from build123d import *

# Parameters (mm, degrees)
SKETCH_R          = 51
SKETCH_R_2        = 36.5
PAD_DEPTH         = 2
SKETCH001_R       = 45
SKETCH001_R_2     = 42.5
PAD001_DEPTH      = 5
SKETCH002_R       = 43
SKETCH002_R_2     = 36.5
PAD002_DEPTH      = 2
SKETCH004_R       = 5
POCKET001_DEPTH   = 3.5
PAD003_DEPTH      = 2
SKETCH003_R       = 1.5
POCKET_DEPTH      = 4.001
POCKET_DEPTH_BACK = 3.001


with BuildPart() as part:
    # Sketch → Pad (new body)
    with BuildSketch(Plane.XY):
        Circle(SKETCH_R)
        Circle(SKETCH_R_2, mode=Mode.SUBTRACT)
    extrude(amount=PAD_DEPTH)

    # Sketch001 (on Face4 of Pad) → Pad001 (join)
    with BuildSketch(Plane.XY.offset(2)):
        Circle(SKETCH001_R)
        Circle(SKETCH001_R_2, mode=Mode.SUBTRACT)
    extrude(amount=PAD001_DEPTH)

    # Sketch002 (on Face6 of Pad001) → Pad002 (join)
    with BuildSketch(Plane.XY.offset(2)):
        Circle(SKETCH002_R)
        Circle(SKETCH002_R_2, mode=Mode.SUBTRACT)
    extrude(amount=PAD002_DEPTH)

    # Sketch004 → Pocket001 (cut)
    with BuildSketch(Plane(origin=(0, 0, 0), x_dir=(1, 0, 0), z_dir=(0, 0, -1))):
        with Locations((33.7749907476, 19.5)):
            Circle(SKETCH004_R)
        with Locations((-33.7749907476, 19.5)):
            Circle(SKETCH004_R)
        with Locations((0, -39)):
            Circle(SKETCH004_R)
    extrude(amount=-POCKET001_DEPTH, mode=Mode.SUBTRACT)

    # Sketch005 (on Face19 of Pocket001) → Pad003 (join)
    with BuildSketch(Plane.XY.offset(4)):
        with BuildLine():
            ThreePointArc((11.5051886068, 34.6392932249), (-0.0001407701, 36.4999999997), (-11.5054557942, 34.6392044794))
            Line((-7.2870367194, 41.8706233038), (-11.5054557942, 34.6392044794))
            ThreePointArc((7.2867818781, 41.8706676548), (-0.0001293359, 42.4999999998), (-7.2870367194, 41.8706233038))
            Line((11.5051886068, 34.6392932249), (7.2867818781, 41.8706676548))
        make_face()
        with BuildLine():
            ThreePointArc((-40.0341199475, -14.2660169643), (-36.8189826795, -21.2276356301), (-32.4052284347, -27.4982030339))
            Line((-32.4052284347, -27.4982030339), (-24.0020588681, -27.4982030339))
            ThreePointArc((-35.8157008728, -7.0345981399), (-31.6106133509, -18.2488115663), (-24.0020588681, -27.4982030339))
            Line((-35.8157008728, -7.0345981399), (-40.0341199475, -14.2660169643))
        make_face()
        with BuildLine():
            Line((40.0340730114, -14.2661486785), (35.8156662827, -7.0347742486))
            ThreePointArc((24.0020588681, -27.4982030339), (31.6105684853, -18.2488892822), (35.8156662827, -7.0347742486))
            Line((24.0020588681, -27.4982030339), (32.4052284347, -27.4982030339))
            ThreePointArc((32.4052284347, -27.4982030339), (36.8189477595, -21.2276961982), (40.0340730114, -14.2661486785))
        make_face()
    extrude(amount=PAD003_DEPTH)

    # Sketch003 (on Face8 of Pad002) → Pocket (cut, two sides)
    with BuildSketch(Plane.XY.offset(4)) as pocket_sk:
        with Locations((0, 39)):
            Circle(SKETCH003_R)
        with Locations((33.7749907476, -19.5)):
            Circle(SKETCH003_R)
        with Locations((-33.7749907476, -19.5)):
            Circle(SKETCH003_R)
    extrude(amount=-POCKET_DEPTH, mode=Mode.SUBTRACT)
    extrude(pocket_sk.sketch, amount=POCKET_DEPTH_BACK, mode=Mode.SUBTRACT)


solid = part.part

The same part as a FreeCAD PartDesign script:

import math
import FreeCAD as App
import Part
import Sketcher
from FreeCAD import Vector
Q = App.Units.Quantity

doc = App.newDocument("Part")
body = doc.addObject("PartDesign::Body", "Body")

sketch1 = body.newObject("Sketcher::SketchObject", "Sketch")
sketch1.AttachmentSupport = (doc.getObject("XY_Plane"), [""])
sketch1.MapMode = "FlatFace"
sketch1.addGeometry([
    Part.Circle(Vector(0, 0, 0), Vector(0, 0, 1), 51),
    Part.Circle(Vector(0, 0, 0), Vector(0, 0, 1), 36.5),
], False)
sketch1.addConstraint([
    Sketcher.Constraint("Coincident", 0, 3, -1, 1),
    Sketcher.Constraint("Coincident", 1, 3, -1, 1),
    Sketcher.Constraint("Diameter", 0, Q("102 mm")),
    Sketcher.Constraint("Diameter", 1, Q("73 mm")),
])
pad1 = body.newObject("PartDesign::Pad", "Pad")
pad1.Profile = sketch1
pad1.Length = 2

sketch2 = body.newObject("Sketcher::SketchObject", "Sketch001")
sketch2.AttachmentSupport = (doc.getObject("XY_Plane"), [""])
sketch2.MapMode = "FlatFace"
sketch2.AttachmentOffset = App.Placement(Vector(0, 0, 2), App.Rotation())
sketch2.addGeometry([
    Part.Circle(Vector(0, 0, 0), Vector(0, 0, 1), 45),
    Part.Circle(Vector(0, 0, 0), Vector(0, 0, 1), 42.5),
], False)
sketch2.addConstraint([
    Sketcher.Constraint("Coincident", 0, 3, -1, 1),
    Sketcher.Constraint("Coincident", 1, 3, -1, 1),
    Sketcher.Constraint("Diameter", 0, Q("90 mm")),
    Sketcher.Constraint("Diameter", 1, Q("85 mm")),
])
pad2 = body.newObject("PartDesign::Pad", "Pad001")
pad2.Profile = sketch2
pad2.Length = 5

sketch3 = body.newObject("Sketcher::SketchObject", "Sketch002")
sketch3.AttachmentSupport = (doc.getObject("XY_Plane"), [""])
sketch3.MapMode = "FlatFace"
sketch3.AttachmentOffset = App.Placement(Vector(0, 0, 2), App.Rotation())
sketch3.addGeometry([
    Part.Circle(Vector(0, 0, 0), Vector(0, 0, 1), 43),
    Part.Circle(Vector(0, 0, 0), Vector(0, 0, 1), 36.5),
], False)
sketch3.addConstraint([
    Sketcher.Constraint("Coincident", 0, 3, -1, 1),
    Sketcher.Constraint("Coincident", 1, 3, -1, 1),
    Sketcher.Constraint("Diameter", 0, Q("86 mm")),
    Sketcher.Constraint("Diameter", 1, Q("73 mm")),
])
pad3 = body.newObject("PartDesign::Pad", "Pad002")
pad3.Profile = sketch3
pad3.Length = 2

sketch4 = body.newObject("Sketcher::SketchObject", "Sketch003")
sketch4.AttachmentSupport = (doc.getObject("XY_Plane"), [""])
sketch4.MapMode = "FlatFace"
sketch4.addGeometry([
    Part.Circle(Vector(33.774991, -19.5, 0), Vector(0, 0, 1), 5),
    Part.Circle(Vector(-33.774991, -19.5, 0), Vector(0, 0, 1), 5),
    Part.Circle(Vector(0, 39, 0), Vector(0, 0, 1), 5),
], False)
sketch4.addConstraint([
    Sketcher.Constraint("Equal", 0, 1),
    Sketcher.Constraint("Equal", 1, 2),
    Sketcher.Constraint("Symmetric", 0, 3, 1, 3, -2),
    Sketcher.Constraint("PointOnObject", 2, 3, -2),
    Sketcher.Constraint("Diameter", 0, Q("10 mm")),
    Sketcher.Constraint("DistanceY", -1, 1, 2, 3, Q("39 mm")),
    Sketcher.Constraint("DistanceY", 0, 3, -1, 1, Q("19.5 mm")),
    Sketcher.Constraint("DistanceX", -1, 1, 0, 3, Q("33.774991 mm")),
])
pocket1 = body.newObject("PartDesign::Pocket", "Pocket")
pocket1.Profile = sketch4
pocket1.Length = 3.5
pocket1.Reversed = True

sketch5 = body.newObject("Sketcher::SketchObject", "Sketch004")
sketch5.AttachmentSupport = (doc.getObject("XY_Plane"), [""])
sketch5.MapMode = "FlatFace"
sketch5.AttachmentOffset = App.Placement(Vector(0, 0, 4), App.Rotation())
sketch5.addGeometry([
    Part.ArcOfCircle(Part.Circle(Vector(0, 0, 0), Vector(0, 0, 1), 36.5), math.radians(71.626469), math.radians(108.373973)),
    Part.LineSegment(Vector(11.505189, 34.639293, 0), Vector(7.286782, 41.870668, 0)),
    Part.ArcOfCircle(Part.Circle(Vector(0, 0, 0), Vector(0, 0, 1), 42.5), math.radians(80.12765), math.radians(99.872699)),
    Part.LineSegment(Vector(-7.287037, 41.870623, 0), Vector(-11.505456, 34.639204, 0)),
    Part.ArcOfCircle(Part.Circle(Vector(0, 0, 0), Vector(0, 0, 1), 42.5), math.radians(-160.386655), math.radians(-139.682962)),
    Part.LineSegment(Vector(-32.405228, -27.498203, 0), Vector(-24.002059, -27.498203, 0)),
    Part.ArcOfCircle(Part.Circle(Vector(0, 0, 0), Vector(0, 0, 1), 36.5), math.radians(-168.887928), math.radians(-131.11638)),
    Part.LineSegment(Vector(-35.815701, -7.034598, 0), Vector(-40.03412, -14.266017, 0)),
    Part.LineSegment(Vector(40.034073, -14.266149, 0), Vector(35.815666, -7.034774, 0)),
    Part.ArcOfCircle(Part.Circle(Vector(0, 0, 0), Vector(0, 0, 1), 36.5), math.radians(-48.88362), math.radians(-11.112354)),
    Part.LineSegment(Vector(24.002059, -27.498203, 0), Vector(32.405228, -27.498203, 0)),
    Part.ArcOfCircle(Part.Circle(Vector(0, 0, 0), Vector(0, 0, 1), 42.5), math.radians(-40.317038), math.radians(-19.613534)),
], False)
sketch5.addConstraint([
    Sketcher.Constraint("Coincident", 0, 1, 1, 1),
    Sketcher.Constraint("Coincident", 1, 2, 2, 1),
    Sketcher.Constraint("Coincident", 2, 2, 3, 1),
    Sketcher.Constraint("Coincident", 3, 2, 0, 2),
    Sketcher.Constraint("Coincident", 4, 2, 5, 1),
    Sketcher.Constraint("Coincident", 5, 2, 6, 2),
    Sketcher.Constraint("Coincident", 6, 1, 7, 1),
    Sketcher.Constraint("Coincident", 7, 2, 4, 1),
    Sketcher.Constraint("Coincident", 8, 2, 9, 2),
    Sketcher.Constraint("Coincident", 9, 1, 10, 1),
    Sketcher.Constraint("Coincident", 10, 2, 11, 1),
    Sketcher.Constraint("Coincident", 11, 2, 8, 1),
    Sketcher.Constraint("Horizontal", 5),
    Sketcher.Constraint("Horizontal", 10),
    Sketcher.Constraint("Coincident", 0, 3, -1, 1),
    Sketcher.Constraint("Coincident", 2, 3, -1, 1),
    Sketcher.Constraint("Coincident", 4, 3, -1, 1),
    Sketcher.Constraint("Coincident", 6, 3, -1, 1),
    Sketcher.Constraint("Coincident", 9, 3, -1, 1),
    Sketcher.Constraint("Coincident", 11, 3, -1, 1),
    Sketcher.Constraint("Equal", 2, 4),
    Sketcher.Constraint("Equal", 0, 6),
    Sketcher.Constraint("Equal", 6, 9),
    Sketcher.Constraint("Equal", 4, 11),
    Sketcher.Constraint("Parallel", 3, 7),
    Sketcher.Constraint("Parallel", 1, 8),
    Sketcher.Constraint("Horizontal", 5, 2, 9, 1),
    Sketcher.Constraint("Equal", 3, 7),
    Sketcher.Constraint("Equal", 1, 8),
    Sketcher.Constraint("Radius", 0, Q("36.5 mm")),
    Sketcher.Constraint("Radius", 2, Q("42.5 mm")),
    Sketcher.Constraint("DistanceX", 5, 1, 5, 2, Q("8.40317 mm")),
    Sketcher.Constraint("DistanceX", 6, 1, -1, 1, Q("35.815701 mm")),
    Sketcher.Constraint("Distance", 1, Q("8.371842 mm")),
    Sketcher.Constraint("DistanceX", -1, 1, 0, 1, Q("11.505189 mm")),
    Sketcher.Constraint("DistanceX", 7, 2, -1, 1, Q("40.03412 mm")),
])
pad4 = body.newObject("PartDesign::Pad", "Pad003")
pad4.Profile = sketch5
pad4.Length = 2

sketch6 = body.newObject("Sketcher::SketchObject", "Sketch005")
sketch6.AttachmentSupport = (doc.getObject("XY_Plane"), [""])
sketch6.MapMode = "FlatFace"
sketch6.AttachmentOffset = App.Placement(Vector(0, 0, 4), App.Rotation())
sketch6.addGeometry([
    Part.Circle(Vector(0, 39, 0), Vector(0, 0, 1), 1.5),
    Part.Circle(Vector(33.774991, -19.5, 0), Vector(0, 0, 1), 1.5),
    Part.Circle(Vector(-33.774991, -19.5, 0), Vector(0, 0, 1), 1.5),
], False)
sketch6.addConstraint([
    Sketcher.Constraint("Equal", 0, 1),
    Sketcher.Constraint("Equal", 1, 2),
    Sketcher.Constraint("Symmetric", 1, 3, 2, 3, -2),
    Sketcher.Constraint("PointOnObject", 0, 3, -2),
    Sketcher.Constraint("Diameter", 0, Q("3 mm")),
    Sketcher.Constraint("DistanceY", -1, 1, 0, 3, Q("39 mm")),
    Sketcher.Constraint("DistanceY", 1, 3, -1, 1, Q("19.5 mm")),
    Sketcher.Constraint("DistanceX", -1, 1, 1, 3, Q("33.774991 mm")),
])
pocket2 = body.newObject("PartDesign::Pocket", "Pocket001")
pocket2.Profile = sketch6
pocket2.Type = "ThroughAll"
pocket2.Midplane = True

doc.recompute()
